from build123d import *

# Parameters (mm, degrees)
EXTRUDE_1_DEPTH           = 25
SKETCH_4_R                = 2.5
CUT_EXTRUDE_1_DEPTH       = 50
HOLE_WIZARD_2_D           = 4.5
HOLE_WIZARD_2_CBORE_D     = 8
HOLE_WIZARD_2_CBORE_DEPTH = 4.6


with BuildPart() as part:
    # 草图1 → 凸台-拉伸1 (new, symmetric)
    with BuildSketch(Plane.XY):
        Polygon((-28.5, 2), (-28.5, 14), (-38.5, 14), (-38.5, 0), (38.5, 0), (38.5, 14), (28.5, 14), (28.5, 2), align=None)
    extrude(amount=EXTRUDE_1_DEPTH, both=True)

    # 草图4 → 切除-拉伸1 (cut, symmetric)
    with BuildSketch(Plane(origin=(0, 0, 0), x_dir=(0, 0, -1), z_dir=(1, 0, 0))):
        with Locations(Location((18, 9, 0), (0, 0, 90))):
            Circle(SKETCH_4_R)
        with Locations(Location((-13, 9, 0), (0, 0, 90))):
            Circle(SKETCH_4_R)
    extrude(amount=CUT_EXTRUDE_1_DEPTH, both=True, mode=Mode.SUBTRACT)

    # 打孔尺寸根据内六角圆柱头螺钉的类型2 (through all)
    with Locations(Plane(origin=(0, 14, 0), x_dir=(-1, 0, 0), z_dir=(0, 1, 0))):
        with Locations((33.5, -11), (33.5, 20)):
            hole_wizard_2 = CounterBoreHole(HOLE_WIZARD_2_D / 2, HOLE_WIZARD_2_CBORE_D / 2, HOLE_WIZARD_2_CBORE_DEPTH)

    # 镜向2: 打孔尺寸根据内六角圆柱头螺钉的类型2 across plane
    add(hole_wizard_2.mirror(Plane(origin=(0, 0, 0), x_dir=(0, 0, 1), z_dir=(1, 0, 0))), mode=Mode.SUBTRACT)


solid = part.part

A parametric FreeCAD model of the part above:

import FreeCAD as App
import Part
import Sketcher

V = App.Vector

doc = App.newDocument("Part")
body = doc.addObject("PartDesign::Body", "Body")

sketch1 = body.newObject("Sketcher::SketchObject", "Sketch")
sketch1.AttachmentSupport = (doc.getObject("XY_Plane"), [""])
sketch1.MapMode = "FlatFace"
sketch1.addGeometry([
    Part.LineSegment(V(-28, 2, 0), V(-28, 14, 0)),
    Part.LineSegment(V(-28, 14, 0), V(-38, 14, 0)),
    Part.LineSegment(V(-38, 14, 0), V(-38, 0, 0)),
    Part.LineSegment(V(-38, 0, 0), V(38, 0, 0)),
    Part.LineSegment(V(38, 0, 0), V(38, 14, 0)),
    Part.LineSegment(V(38, 14, 0), V(28, 14, 0)),
    Part.LineSegment(V(28, 14, 0), V(28, 2, 0)),
    Part.LineSegment(V(28, 2, 0), V(-28, 2, 0)),
], False)
sketch1.addConstraint([
    Sketcher.Constraint("Coincident", 0, 2, 1, 1),
    Sketcher.Constraint("Coincident", 1, 2, 2, 1),
    Sketcher.Constraint("Coincident", 2, 2, 3, 1),
    Sketcher.Constraint("Coincident", 3, 2, 4, 1),
    Sketcher.Constraint("Coincident", 4, 2, 5, 1),
    Sketcher.Constraint("Coincident", 5, 2, 6, 1),
    Sketcher.Constraint("Coincident", 6, 2, 7, 1),
    Sketcher.Constraint("Coincident", 7, 2, 0, 1),
    Sketcher.Constraint("Vertical", 0),
    Sketcher.Constraint("Horizontal", 1),
    Sketcher.Constraint("Vertical", 2),
    Sketcher.Constraint("Horizontal", 3),
    Sketcher.Constraint("Vertical", 4),
    Sketcher.Constraint("Horizontal", 5),
    Sketcher.Constraint("Vertical", 6),
    Sketcher.Constraint("Horizontal", 7),
    Sketcher.Constraint("Symmetric", 2, 2, 3, 2, -1, 1),
    Sketcher.Constraint("Symmetric", 0, 2, 5, 2, -2),
    Sketcher.Constraint("DistanceX", 1, 2, 1, 1, 10.0),
    Sketcher.Constraint("DistanceX", 3, 1, 3, 2, 77.0),
    Sketcher.Constraint("DistanceY", 0, 1, 0, 2, 12.0),
    Sketcher.Constraint("DistanceY", 2, 2, 2, 1, 14.0),
])
pad1 = body.newObject("PartDesign::Pad", "Pad")
pad1.Profile = sketch1
pad1.Length = 50
pad1.Midplane = True

sketch2 = body.newObject("Sketcher::SketchObject", "Sketch001")
sketch2.AttachmentSupport = (doc.getObject("YZ_Plane"), [""])
sketch2.MapMode = "FlatFace"
sketch2.addGeometry([
    Part.Circle(V(9, -18, 0), V(0, 0, 1), 2.5),
    Part.Circle(V(9, 13, 0), V(0, 0, 1), 2.5),
], False)
sketch2.addConstraint([
    Sketcher.Constraint("Equal", 0, 1),
    Sketcher.Constraint("Vertical", 0, 3, 1, 3),
    Sketcher.Constraint("Diameter", 0, 5.0),
    Sketcher.Constraint("DistanceX", -1, 1, 0, 3, 9.0),
    Sketcher.Constraint("DistanceY", 0, 3, -1, 1, 18.0),
    Sketcher.Constraint("DistanceY", -1, 1, 1, 3, 13.0),
])
pocket1 = body.newObject("PartDesign::Pocket", "Pocket")
pocket1.Profile = sketch2
pocket1.Length = 100
pocket1.Midplane = True

sketch3 = body.newObject("Sketcher::SketchObject", "Sketch002")
sketch3.AttachmentSupport = (doc.getObject("XZ_Plane"), [""])
sketch3.MapMode = "FlatFace"
sketch3.AttachmentOffset = App.Placement(V(0, 0, -14), App.Rotation())
sketch3.addGeometry([
    Part.Circle(V(-33.5, -11, 0), V(0, 0, 1), 2.2),
    Part.Circle(V(-33.5, 20, 0), V(0, 0, 1), 2.2),
], False)
sketch3.addConstraint([
    Sketcher.Constraint("Equal", 0, 1),
    Sketcher.Constraint("Vertical", 0, 3, 1, 3),
    Sketcher.Constraint("Diameter", 0, 4.5),
    Sketcher.Constraint("DistanceY", 0, 3, -1, 1, 11.0),
    Sketcher.Constraint("DistanceY", -1, 1, 1, 3, 20.0),
    Sketcher.Constraint("DistanceX", 0, 3, -1, 1, 33.5),
])
doc.recompute()
hole = body.newObject("PartDesign::Hole", "Hole")
hole.Profile = sketch3
hole.ThreadType = "None"
hole.Diameter = 4.5
hole.DepthType = "ThroughAll"
hole.HoleCutType = "Counterbore"
hole.HoleCutDiameter = 8
hole.HoleCutDepth = 4.6
hole.Reversed = True
doc.recompute()

mirrored = body.newObject("PartDesign::Mirrored", "Mirrored")
mirrored.Originals = [hole]
mirrored.MirrorPlane = (doc.getObject("YZ_Plane"), [""])
body.Tip = mirrored

doc.recompute()
